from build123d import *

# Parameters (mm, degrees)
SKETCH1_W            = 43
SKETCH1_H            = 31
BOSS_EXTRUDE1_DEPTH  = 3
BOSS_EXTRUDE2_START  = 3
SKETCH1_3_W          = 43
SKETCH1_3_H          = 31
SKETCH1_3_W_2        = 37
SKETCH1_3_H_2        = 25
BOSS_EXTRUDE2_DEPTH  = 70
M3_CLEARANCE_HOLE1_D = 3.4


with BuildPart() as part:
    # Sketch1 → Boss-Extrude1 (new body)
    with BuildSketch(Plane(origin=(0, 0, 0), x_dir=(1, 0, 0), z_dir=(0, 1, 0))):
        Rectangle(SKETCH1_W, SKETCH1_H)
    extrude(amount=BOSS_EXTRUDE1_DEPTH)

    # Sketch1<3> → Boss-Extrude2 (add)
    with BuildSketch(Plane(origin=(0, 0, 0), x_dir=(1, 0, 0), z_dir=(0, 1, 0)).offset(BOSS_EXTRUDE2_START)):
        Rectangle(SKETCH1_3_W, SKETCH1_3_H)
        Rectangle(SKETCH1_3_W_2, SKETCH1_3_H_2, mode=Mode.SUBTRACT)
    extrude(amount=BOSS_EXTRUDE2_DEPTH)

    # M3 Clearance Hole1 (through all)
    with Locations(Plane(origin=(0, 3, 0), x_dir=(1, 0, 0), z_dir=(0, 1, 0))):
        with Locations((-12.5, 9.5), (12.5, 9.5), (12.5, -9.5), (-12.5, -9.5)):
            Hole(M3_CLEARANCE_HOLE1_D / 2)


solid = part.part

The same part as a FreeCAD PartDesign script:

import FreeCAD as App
import Part
import Sketcher
Q = App.Units.Quantity


def add_polygon(sketch, points):
    """Adds a closed chain of lines whose ends are joined by coincident constraints."""
    first, n = sketch.GeometryCount, len(points)
    for a, b in zip(points, points[1:] + points[:1]):
        sketch.addGeometry(Part.LineSegment(App.Vector(*a, 0), App.Vector(*b, 0)), False)
    for i in range(n):
        sketch.addConstraint(Sketcher.Constraint("Coincident", first + i, 2, first + (i + 1) % n, 1))

doc = App.newDocument("Part")
body = doc.addObject("PartDesign::Body", "Body")

# Sketch on XZ plane
sketch1 = body.newObject("Sketcher::SketchObject", "Sketch")
sketch1.AttachmentSupport = (doc.getObject("XZ_Plane"), [""])
sketch1.MapMode = "FlatFace"
add_polygon(sketch1, [(-22, -16), (-22, 16), (22, 16), (22, -16)])  # lines 0-3
sketch1.addConstraint(Sketcher.Constraint("Vertical", 0))
sketch1.addConstraint(Sketcher.Constraint("Horizontal", 1))
sketch1.addConstraint(Sketcher.Constraint("Vertical", 2))
sketch1.addConstraint(Sketcher.Constraint("Horizontal", 3))
sketch1.addConstraint(Sketcher.Constraint("Symmetric", 0, 2, 2, 2, -1, 1))
sketch1.addConstraint(Sketcher.Constraint("DistanceX", 1, 1, 1, 2, Q("43 mm")))
sketch1.addConstraint(Sketcher.Constraint("DistanceY", 0, 1, 0, 2, Q("31 mm")))
pad1 = body.newObject("PartDesign::Pad", "Pad")
pad1.Profile = sketch1
pad1.Length = 3
pad1.Reversed = True

# Sketch on XZ plane
sketch2 = body.newObject("Sketcher::SketchObject", "Sketch001")
sketch2.AttachmentSupport = (doc.getObject("XZ_Plane"), [""])
sketch2.MapMode = "FlatFace"
sketch2.AttachmentOffset = App.Placement(App.Vector(0, 0, -3), App.Rotation())
add_polygon(sketch2, [(-22, -16), (-22, 16), (22, 16), (22, -16)])  # lines 0-3
add_polygon(sketch2, [(18, 12), (-18, 12), (-18, -12), (18, -12)])  # lines 4-7
sketch2.addConstraint(Sketcher.Constraint("Vertical", 0))
sketch2.addConstraint(Sketcher.Constraint("Horizontal", 1))
sketch2.addConstraint(Sketcher.Constraint("Vertical", 2))
sketch2.addConstraint(Sketcher.Constraint("Horizontal", 3))
sketch2.addConstraint(Sketcher.Constraint("Horizontal", 4))
sketch2.addConstraint(Sketcher.Constraint("Vertical", 5))
sketch2.addConstraint(Sketcher.Constraint("Horizontal", 6))
sketch2.addConstraint(Sketcher.Constraint("Vertical", 7))
sketch2.addConstraint(Sketcher.Constraint("Symmetric", 0, 2, 2, 2, -1, 1))
sketch2.addConstraint(Sketcher.Constraint("Symmetric", 4, 2, 6, 2, -1, 1))
sketch2.addConstraint(Sketcher.Constraint("DistanceX", 1, 1, 1, 2, Q("43 mm")))
sketch2.addConstraint(Sketcher.Constraint("DistanceX", 4, 2, 4, 1, Q("37 mm")))
sketch2.addConstraint(Sketcher.Constraint("DistanceY", 0, 1, 0, 2, Q("31 mm")))
sketch2.addConstraint(Sketcher.Constraint("DistanceY", 5, 2, 5, 1, Q("25 mm")))
pad2 = body.newObject("PartDesign::Pad", "Pad001")
pad2.Profile = sketch2
pad2.Length = 70
pad2.Reversed = True

# Sketch on XZ plane
sketch3 = body.newObject("Sketcher::SketchObject", "Sketch002")
sketch3.AttachmentSupport = (doc.getObject("XZ_Plane"), [""])
sketch3.MapMode = "FlatFace"
sketch3.AttachmentOffset = App.Placement(App.Vector(0, 0, -3), App.Rotation())
sketch3.addGeometry(Part.Circle(App.Vector(-12.5, -9.5, 0), App.Vector(0, 0, 1), 1.7), False)
sketch3.addGeometry(Part.Circle(App.Vector(12.5, -9.5, 0), App.Vector(0, 0, 1), 1.7), False)
sketch3.addGeometry(Part.Circle(App.Vector(12.5, 9.5, 0), App.Vector(0, 0, 1), 1.7), False)
sketch3.addGeometry(Part.Circle(App.Vector(-12.5, 9.5, 0), App.Vector(0, 0, 1), 1.7), False)
sketch3.addConstraint(Sketcher.Constraint("Equal", 0, 1))
sketch3.addConstraint(Sketcher.Constraint("Equal", 1, 2))
sketch3.addConstraint(Sketcher.Constraint("Equal", 2, 3))
sketch3.addConstraint(Sketcher.Constraint("Symmetric", 0, 3, 2, 3, -1, 1))
sketch3.addConstraint(Sketcher.Constraint("Symmetric", 1, 3, 3, 3, -1, 1))
sketch3.addConstraint(Sketcher.Constraint("Symmetric", 0, 3, 1, 3, -2))
sketch3.addConstraint(Sketcher.Constraint("Diameter", 0, Q("3.4 mm")))
sketch3.addConstraint(Sketcher.Constraint("DistanceX", 0, 3, 1, 3, Q("25 mm")))
sketch3.addConstraint(Sketcher.Constraint("DistanceY", 1, 3, 2, 3, Q("19 mm")))
doc.recompute()
hole = body.newObject("PartDesign::Hole", "Hole")
hole.Profile = sketch3
hole.ThreadType = "None"
hole.Diameter = 3.4
hole.DepthType = "ThroughAll"
hole.Reversed = True

doc.recompute()
